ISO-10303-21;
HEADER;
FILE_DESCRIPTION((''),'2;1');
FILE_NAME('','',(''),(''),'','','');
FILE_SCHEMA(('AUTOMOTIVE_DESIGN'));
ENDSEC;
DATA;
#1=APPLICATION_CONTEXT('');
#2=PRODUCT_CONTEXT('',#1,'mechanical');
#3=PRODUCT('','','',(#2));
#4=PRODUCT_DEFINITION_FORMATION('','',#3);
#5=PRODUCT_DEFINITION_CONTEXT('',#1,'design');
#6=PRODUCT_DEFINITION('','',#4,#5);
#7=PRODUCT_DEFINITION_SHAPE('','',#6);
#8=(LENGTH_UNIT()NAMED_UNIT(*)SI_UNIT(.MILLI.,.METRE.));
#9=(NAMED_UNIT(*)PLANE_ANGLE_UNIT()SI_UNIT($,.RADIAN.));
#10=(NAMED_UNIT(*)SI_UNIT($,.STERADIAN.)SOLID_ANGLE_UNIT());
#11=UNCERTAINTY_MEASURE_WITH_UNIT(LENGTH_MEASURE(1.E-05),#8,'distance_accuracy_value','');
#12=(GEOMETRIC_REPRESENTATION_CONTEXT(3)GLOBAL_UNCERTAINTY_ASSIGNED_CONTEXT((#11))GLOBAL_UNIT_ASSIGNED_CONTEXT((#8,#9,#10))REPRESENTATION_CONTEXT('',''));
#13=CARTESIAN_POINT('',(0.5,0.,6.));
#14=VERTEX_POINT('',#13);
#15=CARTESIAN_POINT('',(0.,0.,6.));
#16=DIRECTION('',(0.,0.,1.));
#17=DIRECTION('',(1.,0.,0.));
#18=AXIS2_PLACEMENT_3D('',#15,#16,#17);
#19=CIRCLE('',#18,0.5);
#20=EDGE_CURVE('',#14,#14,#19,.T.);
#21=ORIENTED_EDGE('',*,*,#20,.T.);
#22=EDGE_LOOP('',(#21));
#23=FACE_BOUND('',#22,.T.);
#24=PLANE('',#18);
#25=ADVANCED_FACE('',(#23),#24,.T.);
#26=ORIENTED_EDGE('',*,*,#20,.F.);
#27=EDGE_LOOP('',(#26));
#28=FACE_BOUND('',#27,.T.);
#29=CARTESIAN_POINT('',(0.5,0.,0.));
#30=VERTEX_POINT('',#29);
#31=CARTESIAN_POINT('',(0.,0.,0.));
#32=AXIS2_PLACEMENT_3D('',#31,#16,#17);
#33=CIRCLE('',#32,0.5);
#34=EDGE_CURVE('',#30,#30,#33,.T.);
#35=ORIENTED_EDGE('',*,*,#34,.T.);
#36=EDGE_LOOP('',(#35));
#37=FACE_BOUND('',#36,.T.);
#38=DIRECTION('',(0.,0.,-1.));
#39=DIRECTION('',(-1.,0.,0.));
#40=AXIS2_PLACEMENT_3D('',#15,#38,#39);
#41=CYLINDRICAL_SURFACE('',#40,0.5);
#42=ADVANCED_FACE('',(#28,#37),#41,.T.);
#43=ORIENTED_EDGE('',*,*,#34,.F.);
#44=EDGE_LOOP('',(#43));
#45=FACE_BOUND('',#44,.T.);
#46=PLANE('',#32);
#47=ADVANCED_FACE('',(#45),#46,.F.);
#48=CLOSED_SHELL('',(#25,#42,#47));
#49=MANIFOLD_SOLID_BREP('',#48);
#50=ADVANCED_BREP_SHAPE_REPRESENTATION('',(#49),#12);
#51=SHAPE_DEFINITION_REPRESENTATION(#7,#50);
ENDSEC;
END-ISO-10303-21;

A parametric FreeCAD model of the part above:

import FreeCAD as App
import Part
import Sketcher

V = App.Vector

doc = App.newDocument("Part")
params = doc.addObject("Spreadsheet::Sheet", "Params")
for row, (alias, value) in enumerate([
    ("sketch1_diameter", "1 mm"),
    ("pad1_length", "6 mm"),
], start=1):
    params.set(f"A{row}", alias)
    params.set(f"B{row}", "=" + value)
    params.setAlias(f"B{row}", alias)

body = doc.addObject("PartDesign::Body", "Body")

# Sketch on XY plane
sketch1 = doc.addObject("Sketcher::SketchObject", "Sketch")
body.addObject(sketch1)
sketch1.AttachmentSupport = (doc.XY_Plane, [""])
sketch1.MapMode = "FlatFace"
sketch1.addGeometry(Part.Circle(V(0, 0, 0), V(0, 0, 1), 0.5), False)
sketch1.addConstraint([
    Sketcher.Constraint("Coincident", 0, 3, -1, 1),
    Sketcher.Constraint("Diameter", 0, 1.0),
])
sketch1.setExpression("Constraints[1]", "Params.sketch1_diameter")
pad1 = doc.addObject("PartDesign::Pad", "Pad")
body.addObject(pad1)
pad1.Profile = sketch1
pad1.setExpression("Length", "Params.pad1_length")

doc.recompute()
